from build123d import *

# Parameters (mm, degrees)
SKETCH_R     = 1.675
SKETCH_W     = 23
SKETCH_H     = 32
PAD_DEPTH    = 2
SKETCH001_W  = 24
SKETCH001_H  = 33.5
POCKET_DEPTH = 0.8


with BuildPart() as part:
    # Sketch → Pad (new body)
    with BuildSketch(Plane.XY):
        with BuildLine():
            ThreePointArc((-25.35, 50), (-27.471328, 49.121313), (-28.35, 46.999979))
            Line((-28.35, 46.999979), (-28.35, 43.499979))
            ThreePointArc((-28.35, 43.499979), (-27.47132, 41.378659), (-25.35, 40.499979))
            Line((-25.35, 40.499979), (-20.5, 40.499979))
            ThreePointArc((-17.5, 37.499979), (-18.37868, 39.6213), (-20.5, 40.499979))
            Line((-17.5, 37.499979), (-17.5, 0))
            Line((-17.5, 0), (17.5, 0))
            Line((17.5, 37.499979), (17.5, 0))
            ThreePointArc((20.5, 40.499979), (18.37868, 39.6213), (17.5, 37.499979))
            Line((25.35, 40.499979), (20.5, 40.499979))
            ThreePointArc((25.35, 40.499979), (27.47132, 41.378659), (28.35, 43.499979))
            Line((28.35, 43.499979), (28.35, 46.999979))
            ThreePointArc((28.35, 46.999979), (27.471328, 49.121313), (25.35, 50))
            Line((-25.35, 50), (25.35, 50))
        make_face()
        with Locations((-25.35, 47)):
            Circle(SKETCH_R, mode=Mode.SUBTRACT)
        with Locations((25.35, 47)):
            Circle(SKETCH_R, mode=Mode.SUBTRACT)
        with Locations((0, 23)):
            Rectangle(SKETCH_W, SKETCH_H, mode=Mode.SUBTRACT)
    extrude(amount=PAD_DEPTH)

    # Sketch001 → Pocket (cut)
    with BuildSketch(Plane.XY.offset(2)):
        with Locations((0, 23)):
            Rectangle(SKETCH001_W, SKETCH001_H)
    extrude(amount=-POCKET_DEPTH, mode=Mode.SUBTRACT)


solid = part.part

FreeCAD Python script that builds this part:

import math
import FreeCAD as App
import Part
import Sketcher
from FreeCAD import Vector
Q = App.Units.Quantity


def add_polygon(sketch, points):
    """Adds a closed chain of lines whose ends are joined by coincident constraints."""
    first, n = sketch.GeometryCount, len(points)
    for a, b in zip(points, points[1:] + points[:1]):
        sketch.addGeometry(Part.LineSegment(App.Vector(*a, 0), App.Vector(*b, 0)), False)
    for i in range(n):
        sketch.addConstraint(Sketcher.Constraint("Coincident", first + i, 2, first + (i + 1) % n, 1))

doc = App.newDocument("Part")
body = doc.addObject("PartDesign::Body", "Body")

sketch1 = body.newObject("Sketcher::SketchObject", "Sketch")
sketch1.AttachmentSupport = (doc.getObject("XY_Plane"), [""])
sketch1.MapMode = "FlatFace"
sketch1.addGeometry(Part.ArcOfCircle(Part.Circle(Vector(-25.4, 47, 0), Vector(0, 0, 1), 3), math.radians(90), math.radians(180)), False)
sketch1.addGeometry(Part.LineSegment(Vector(-28.4, 47, 0), Vector(-28.4, 43.5, 0)), False)
sketch1.addGeometry(Part.ArcOfCircle(Part.Circle(Vector(-25.3, 43.5, 0), Vector(0, 0, 1), 3), math.radians(-180), math.radians(-90)), False)
sketch1.addGeometry(Part.LineSegment(Vector(-25.4, 40.5, 0), Vector(-20.5, 40.5, 0)), False)
sketch1.addGeometry(Part.ArcOfCircle(Part.Circle(Vector(-20.5, 37.5, 0), Vector(0, 0, 1), 3), math.radians(0), math.radians(90)), False)
sketch1.addGeometry(Part.LineSegment(Vector(-17.5, 37.5, 0), Vector(-17.5, 0, 0)), False)
sketch1.addGeometry(Part.LineSegment(Vector(-17.5, 0, 0), Vector(17.5, 0, 0)), False)
sketch1.addGeometry(Part.LineSegment(Vector(17.5, 0, 0), Vector(17.5, 37.5, 0)), False)
sketch1.addGeometry(Part.ArcOfCircle(Part.Circle(Vector(20.5, 37.5, 0), Vector(0, 0, 1), 3), math.radians(90), math.radians(180)), False)
sketch1.addGeometry(Part.LineSegment(Vector(20.5, 40.5, 0), Vector(25.4, 40.5, 0)), False)
sketch1.addGeometry(Part.ArcOfCircle(Part.Circle(Vector(25.3, 43.5, 0), Vector(0, 0, 1), 3), math.radians(-90), math.radians(0)), False)
sketch1.addGeometry(Part.LineSegment(Vector(28.4, 43.5, 0), Vector(28.4, 47, 0)), False)
sketch1.addGeometry(Part.ArcOfCircle(Part.Circle(Vector(25.4, 47, 0), Vector(0, 0, 1), 3), math.radians(0), math.radians(90)), False)
sketch1.addGeometry(Part.LineSegment(Vector(25.4, 50, 0), Vector(-25.4, 50, 0)), False)
add_polygon(sketch1, [(11.5, 7), (-11.5, 7), (-11.5, 39), (11.5, 39)])
sketch1.addGeometry(Part.Circle(Vector(-25.4, 47, 0), Vector(0, 0, 1), 1.7), False)
sketch1.addGeometry(Part.Circle(Vector(25.4, 47, 0), Vector(0, 0, 1), 1.7), False)
sketch1.addConstraint([
    Sketcher.Constraint("Coincident", 0, 2, 1, 1),
    Sketcher.Constraint("Tangent", 1, 2, 2, 1),
    Sketcher.Constraint("Tangent", 2, 2, 3, 1),
    Sketcher.Constraint("Tangent", 3, 2, 4, 2),
    Sketcher.Constraint("Tangent", 4, 1, 5, 1),
    Sketcher.Constraint("Coincident", 5, 2, 6, 1),
    Sketcher.Constraint("Coincident", 6, 2, 7, 1),
    Sketcher.Constraint("Tangent", 7, 2, 8, 2),
    Sketcher.Constraint("Tangent", 8, 1, 9, 1),
    Sketcher.Constraint("Tangent", 9, 2, 10, 1),
    Sketcher.Constraint("Tangent", 10, 2, 11, 1),
    Sketcher.Constraint("Coincident", 11, 2, 12, 1),
    Sketcher.Constraint("Tangent", 12, 2, 13, 1),
    Sketcher.Constraint("Tangent", 13, 2, 0, 1),
    Sketcher.Constraint("Vertical", 1),
    Sketcher.Constraint("Horizontal", 3),
    Sketcher.Constraint("Vertical", 5),
    Sketcher.Constraint("Horizontal", 6),
    Sketcher.Constraint("Vertical", 7),
    Sketcher.Constraint("Horizontal", 9),
    Sketcher.Constraint("Vertical", 11),
    Sketcher.Constraint("Horizontal", 13),
    Sketcher.Constraint("Horizontal", 14),
    Sketcher.Constraint("Vertical", 15),
    Sketcher.Constraint("Horizontal", 16),
    Sketcher.Constraint("Vertical", 17),
    Sketcher.Constraint("Coincident", 18, 3, 0, 3),
    Sketcher.Constraint("Coincident", 19, 3, 12, 3),
    Sketcher.Constraint("Equal", 0, 2),
    Sketcher.Constraint("Equal", 2, 4),
    Sketcher.Constraint("Equal", 4, 8),
    Sketcher.Constraint("Equal", 8, 10),
    Sketcher.Constraint("Equal", 10, 12),
    Sketcher.Constraint("Equal", 18, 19),
    Sketcher.Constraint("Symmetric", 5, 2, 6, 2, -1, 1),
    Sketcher.Constraint("Symmetric", 2, 3, 10, 3, -2),
    Sketcher.Constraint("Horizontal", 0, 2, 11, 2),
    Sketcher.Constraint("Radius", 0, Q("2.999999 mm")),
    Sketcher.Constraint("Diameter", 18, Q("3.35 mm")),
    Sketcher.Constraint("DistanceX", 6, 1, 6, 2, Q("35 mm")),
    Sketcher.Constraint("DistanceX", 14, 2, 14, 1, Q("23 mm")),
    Sketcher.Constraint("DistanceY", 15, 1, 15, 2, Q("32 mm")),
    Sketcher.Constraint("DistanceX", 13, 2, 13, 1, Q("50.7 mm")),
    Sketcher.Constraint("DistanceY", 1, 2, 1, 1, Q("3.5 mm")),
    Sketcher.Constraint("DistanceY", -1, 1, 0, 3, Q("47.000001 mm")),
    Sketcher.Constraint("DistanceY", -1, 1, 14, 2, Q("7 mm")),
    Sketcher.Constraint("DistanceX", 5, 2, 14, 2, Q("6 mm")),
    Sketcher.Constraint("DistanceY", 5, 2, 5, 1, Q("37.499979 mm")),
])
pad1 = body.newObject("PartDesign::Pad", "Pad")
pad1.Profile = sketch1
pad1.Length = 2

sketch2 = body.newObject("Sketcher::SketchObject", "Sketch001")
sketch2.AttachmentSupport = (doc.getObject("XY_Plane"), [""])
sketch2.MapMode = "FlatFace"
sketch2.AttachmentOffset = App.Placement(Vector(0, 0, 2), App.Rotation())
add_polygon(sketch2, [(-12, 40), (-12, 6), (12, 6), (12, 40)])
sketch2.addConstraint([
    Sketcher.Constraint("Vertical", 0),
    Sketcher.Constraint("Horizontal", 1),
    Sketcher.Constraint("Vertical", 2),
    Sketcher.Constraint("Horizontal", 3),
    Sketcher.Constraint("DistanceX", 1, 1, 1, 2, Q("24 mm")),
    Sketcher.Constraint("DistanceY", 0, 2, 0, 1, Q("33.5 mm")),
    Sketcher.Constraint("DistanceX", 0, 2, -1, 1, Q("12 mm")),
    Sketcher.Constraint("DistanceY", -1, 1, 0, 2, Q("6.25 mm")),
])
pocket1 = body.newObject("PartDesign::Pocket", "Pocket")
pocket1.Profile = sketch2
pocket1.Length = 0.8

doc.recompute()
